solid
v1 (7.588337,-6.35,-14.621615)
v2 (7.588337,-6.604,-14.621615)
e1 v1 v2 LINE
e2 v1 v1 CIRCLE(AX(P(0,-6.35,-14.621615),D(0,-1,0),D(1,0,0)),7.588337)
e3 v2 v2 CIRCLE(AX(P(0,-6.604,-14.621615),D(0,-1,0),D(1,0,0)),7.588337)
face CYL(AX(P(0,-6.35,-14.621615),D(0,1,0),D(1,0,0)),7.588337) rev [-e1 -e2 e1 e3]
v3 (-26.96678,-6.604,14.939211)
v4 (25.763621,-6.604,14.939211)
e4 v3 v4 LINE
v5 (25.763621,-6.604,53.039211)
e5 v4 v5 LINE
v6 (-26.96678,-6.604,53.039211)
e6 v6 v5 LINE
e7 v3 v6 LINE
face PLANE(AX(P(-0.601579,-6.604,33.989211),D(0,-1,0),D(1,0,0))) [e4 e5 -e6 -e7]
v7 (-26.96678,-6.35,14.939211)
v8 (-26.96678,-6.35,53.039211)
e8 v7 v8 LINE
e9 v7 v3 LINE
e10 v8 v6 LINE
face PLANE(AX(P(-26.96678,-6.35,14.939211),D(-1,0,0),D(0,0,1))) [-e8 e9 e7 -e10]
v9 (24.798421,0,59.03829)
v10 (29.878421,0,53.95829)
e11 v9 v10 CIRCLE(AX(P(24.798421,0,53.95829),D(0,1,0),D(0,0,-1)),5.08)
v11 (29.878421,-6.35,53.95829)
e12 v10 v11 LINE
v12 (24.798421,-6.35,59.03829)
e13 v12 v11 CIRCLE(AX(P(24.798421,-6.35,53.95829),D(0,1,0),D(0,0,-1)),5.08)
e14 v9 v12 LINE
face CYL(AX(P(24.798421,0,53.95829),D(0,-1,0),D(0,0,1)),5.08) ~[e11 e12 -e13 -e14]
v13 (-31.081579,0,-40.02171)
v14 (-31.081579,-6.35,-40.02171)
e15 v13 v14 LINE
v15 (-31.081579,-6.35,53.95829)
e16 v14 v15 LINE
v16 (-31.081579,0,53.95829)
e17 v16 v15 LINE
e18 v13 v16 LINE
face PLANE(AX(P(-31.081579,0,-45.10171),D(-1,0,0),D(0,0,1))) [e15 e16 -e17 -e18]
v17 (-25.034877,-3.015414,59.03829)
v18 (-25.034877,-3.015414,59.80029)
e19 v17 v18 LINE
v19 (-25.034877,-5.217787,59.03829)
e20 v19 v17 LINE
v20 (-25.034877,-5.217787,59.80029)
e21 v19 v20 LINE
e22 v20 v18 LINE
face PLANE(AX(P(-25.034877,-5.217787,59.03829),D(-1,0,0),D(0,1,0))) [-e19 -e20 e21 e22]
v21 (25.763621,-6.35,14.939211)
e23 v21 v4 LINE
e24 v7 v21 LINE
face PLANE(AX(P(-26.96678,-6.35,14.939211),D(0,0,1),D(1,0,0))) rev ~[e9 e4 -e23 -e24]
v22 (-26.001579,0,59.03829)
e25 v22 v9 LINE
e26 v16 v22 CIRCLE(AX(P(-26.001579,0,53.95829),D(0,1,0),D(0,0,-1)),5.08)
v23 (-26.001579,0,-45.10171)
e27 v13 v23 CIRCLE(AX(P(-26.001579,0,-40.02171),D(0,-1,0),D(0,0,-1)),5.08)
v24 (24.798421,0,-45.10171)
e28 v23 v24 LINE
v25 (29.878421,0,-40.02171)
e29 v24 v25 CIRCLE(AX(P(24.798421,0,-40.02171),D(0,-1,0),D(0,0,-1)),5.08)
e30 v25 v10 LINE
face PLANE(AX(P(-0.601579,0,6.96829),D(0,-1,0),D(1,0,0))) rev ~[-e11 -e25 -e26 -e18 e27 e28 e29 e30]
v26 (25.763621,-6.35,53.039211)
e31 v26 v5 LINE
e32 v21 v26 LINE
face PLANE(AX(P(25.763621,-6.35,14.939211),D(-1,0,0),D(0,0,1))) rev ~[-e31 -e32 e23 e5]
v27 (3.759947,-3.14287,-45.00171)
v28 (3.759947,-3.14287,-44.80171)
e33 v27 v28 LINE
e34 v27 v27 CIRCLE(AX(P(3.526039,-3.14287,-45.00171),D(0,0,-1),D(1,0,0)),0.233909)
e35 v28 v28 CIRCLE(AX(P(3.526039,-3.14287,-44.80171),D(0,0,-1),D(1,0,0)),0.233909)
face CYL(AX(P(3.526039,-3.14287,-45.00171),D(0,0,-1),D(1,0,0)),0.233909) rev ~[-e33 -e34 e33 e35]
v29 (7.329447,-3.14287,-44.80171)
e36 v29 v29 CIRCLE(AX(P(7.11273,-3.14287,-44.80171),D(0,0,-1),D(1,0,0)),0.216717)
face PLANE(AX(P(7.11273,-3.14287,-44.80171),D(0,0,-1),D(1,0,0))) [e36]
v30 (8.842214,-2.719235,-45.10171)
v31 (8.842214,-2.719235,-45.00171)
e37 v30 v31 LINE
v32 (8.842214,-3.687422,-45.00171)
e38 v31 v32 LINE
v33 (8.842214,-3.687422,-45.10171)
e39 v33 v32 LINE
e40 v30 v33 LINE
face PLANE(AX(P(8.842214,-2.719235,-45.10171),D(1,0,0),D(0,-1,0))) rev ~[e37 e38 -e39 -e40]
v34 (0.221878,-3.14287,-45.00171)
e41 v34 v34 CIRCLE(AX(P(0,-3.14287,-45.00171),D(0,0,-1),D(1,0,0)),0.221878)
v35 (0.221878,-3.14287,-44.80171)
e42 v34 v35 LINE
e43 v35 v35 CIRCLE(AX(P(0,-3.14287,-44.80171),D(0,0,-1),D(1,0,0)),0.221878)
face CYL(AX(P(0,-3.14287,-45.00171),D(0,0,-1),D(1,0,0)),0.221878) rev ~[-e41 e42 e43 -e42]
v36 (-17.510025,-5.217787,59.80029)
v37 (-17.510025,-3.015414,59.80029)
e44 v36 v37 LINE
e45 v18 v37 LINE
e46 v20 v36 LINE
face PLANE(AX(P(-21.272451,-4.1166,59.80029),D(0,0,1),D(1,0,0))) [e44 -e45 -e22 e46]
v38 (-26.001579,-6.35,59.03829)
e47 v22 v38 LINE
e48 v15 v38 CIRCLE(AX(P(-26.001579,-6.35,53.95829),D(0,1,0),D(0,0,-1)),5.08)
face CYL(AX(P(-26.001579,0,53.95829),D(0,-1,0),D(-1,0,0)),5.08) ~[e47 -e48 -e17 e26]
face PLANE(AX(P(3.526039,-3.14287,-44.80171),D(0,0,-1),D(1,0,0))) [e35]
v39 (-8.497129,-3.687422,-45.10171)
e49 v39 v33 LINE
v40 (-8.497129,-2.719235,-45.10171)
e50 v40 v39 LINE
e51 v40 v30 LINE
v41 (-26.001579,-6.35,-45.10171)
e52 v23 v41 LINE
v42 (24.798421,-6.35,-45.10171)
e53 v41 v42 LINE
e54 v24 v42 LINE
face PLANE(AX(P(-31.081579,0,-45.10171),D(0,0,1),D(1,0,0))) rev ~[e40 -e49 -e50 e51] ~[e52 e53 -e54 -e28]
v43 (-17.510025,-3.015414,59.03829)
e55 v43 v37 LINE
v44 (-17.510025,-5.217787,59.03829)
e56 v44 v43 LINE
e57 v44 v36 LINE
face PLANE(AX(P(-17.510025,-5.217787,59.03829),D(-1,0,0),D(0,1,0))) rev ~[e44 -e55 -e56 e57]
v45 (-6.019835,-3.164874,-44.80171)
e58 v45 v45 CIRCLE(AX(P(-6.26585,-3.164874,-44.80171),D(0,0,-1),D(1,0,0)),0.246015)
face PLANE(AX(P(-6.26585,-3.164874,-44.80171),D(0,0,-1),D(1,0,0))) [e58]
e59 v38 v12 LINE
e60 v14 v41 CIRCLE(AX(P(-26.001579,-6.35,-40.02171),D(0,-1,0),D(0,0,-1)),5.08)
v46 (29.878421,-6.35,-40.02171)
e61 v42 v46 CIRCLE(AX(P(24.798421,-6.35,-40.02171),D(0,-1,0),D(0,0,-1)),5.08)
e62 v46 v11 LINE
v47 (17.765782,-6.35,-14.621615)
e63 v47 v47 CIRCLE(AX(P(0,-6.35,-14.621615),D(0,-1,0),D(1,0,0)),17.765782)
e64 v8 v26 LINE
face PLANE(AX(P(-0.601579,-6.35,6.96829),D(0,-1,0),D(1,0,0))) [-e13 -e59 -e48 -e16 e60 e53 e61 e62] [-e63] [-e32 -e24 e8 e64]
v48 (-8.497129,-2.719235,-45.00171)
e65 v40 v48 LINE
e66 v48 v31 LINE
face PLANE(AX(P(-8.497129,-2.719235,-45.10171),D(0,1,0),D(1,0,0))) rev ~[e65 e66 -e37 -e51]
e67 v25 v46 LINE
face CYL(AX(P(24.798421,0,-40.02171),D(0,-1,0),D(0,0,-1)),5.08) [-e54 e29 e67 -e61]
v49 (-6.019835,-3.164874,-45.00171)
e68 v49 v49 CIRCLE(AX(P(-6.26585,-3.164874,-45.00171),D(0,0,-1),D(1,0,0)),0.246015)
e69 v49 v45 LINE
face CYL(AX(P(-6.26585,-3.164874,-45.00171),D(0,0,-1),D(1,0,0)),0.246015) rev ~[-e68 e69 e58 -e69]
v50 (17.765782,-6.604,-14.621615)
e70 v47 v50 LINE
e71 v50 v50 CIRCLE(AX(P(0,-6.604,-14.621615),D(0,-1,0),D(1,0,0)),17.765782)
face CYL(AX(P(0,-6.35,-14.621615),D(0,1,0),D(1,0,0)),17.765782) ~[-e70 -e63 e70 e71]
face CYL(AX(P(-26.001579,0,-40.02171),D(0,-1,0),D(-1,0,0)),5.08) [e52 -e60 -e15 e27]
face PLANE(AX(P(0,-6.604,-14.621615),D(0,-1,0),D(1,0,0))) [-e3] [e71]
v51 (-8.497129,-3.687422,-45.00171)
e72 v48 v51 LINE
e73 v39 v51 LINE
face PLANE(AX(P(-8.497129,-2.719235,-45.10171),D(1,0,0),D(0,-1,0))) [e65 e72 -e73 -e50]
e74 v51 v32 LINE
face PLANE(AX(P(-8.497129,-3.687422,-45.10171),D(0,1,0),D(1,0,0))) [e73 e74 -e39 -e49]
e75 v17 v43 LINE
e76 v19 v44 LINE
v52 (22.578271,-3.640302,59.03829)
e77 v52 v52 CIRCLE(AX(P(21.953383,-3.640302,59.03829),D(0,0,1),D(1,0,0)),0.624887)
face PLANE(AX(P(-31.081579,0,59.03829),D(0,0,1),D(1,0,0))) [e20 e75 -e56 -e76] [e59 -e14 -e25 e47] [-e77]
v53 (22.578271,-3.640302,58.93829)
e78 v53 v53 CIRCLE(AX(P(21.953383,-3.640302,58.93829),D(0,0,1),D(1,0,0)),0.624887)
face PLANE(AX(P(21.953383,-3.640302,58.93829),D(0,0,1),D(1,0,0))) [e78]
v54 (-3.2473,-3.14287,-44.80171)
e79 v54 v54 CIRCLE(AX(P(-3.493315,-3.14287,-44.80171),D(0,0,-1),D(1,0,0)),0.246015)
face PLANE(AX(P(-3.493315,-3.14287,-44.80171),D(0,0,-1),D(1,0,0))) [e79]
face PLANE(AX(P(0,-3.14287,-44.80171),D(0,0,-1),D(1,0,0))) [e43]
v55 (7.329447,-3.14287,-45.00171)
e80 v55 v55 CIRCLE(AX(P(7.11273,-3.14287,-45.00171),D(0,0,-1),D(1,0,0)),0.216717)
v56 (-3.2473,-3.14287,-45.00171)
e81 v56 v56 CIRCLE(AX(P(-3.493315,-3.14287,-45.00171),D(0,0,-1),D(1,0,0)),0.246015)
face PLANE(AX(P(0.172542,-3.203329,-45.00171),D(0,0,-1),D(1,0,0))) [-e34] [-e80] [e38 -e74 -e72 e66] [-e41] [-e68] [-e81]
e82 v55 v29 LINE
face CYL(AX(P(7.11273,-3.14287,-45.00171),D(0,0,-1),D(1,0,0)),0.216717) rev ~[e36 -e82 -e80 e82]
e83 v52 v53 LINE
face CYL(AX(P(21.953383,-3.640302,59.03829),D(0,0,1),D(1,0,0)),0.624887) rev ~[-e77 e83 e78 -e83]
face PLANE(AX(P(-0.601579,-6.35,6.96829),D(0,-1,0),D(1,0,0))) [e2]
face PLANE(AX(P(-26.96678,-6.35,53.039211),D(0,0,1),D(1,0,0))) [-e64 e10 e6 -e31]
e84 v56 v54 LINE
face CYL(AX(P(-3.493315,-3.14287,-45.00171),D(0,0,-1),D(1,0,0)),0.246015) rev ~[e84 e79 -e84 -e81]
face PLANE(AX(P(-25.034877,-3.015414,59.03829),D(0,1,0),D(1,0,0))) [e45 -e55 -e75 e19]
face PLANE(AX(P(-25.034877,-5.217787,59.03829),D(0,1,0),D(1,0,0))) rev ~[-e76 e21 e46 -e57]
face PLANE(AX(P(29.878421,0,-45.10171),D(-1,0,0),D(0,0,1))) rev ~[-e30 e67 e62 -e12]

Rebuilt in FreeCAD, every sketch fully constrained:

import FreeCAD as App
import Part
import Sketcher
from FreeCAD import Vector
Q = App.Units.Quantity


def edges_at(feature, points):
    """Names of the edges that pass closest to the given points."""
    edges = feature.Shape.Edges
    near = lambda p: min(range(len(edges)), key=lambda i: edges[i].distToShape(Part.Vertex(*p))[0])
    return sorted({f"Edge{near(p) + 1}" for p in points})


def add_polygon(sketch, points):
    """Adds a closed chain of lines whose ends are joined by coincident constraints."""
    first, n = sketch.GeometryCount, len(points)
    for a, b in zip(points, points[1:] + points[:1]):
        sketch.addGeometry(Part.LineSegment(App.Vector(*a, 0), App.Vector(*b, 0)), False)
    for i in range(n):
        sketch.addConstraint(Sketcher.Constraint("Coincident", first + i, 2, first + (i + 1) % n, 1))

doc = App.newDocument("Part")
params = doc.addObject("Spreadsheet::Sheet", "Params")
for row, (alias, value) in enumerate([
    ("sketch1_width", "2.4 in"),
    ("sketch1_height", "4.1 in"),
    ("pad1_length", "0.25 in"),
    ("pad2_length", "0.01 in"),
    ("sketch3_height", "1.5 in"),
    ("sketch3_width", "2.076 in"),
    ("pad3_length", "0.01 in"),
    ("pad4_length", "0.03 in"),
    ("fillet_radius", "0.2 in"),
    ("pocket1_length", "0.1 mm"),
    ("pocket2_length", "0.1 mm"),
    ("pocket3_length", "0.2 mm"),
], start=1):
    params.set(f"A{row}", alias)
    params.set(f"B{row}", "=" + value)
    params.setAlias(f"B{row}", alias)

body = doc.addObject("PartDesign::Body", "Body")

# Sketch on XZ plane
sketch1 = body.newObject("Sketcher::SketchObject", "Sketch")
sketch1.AttachmentSupport = (doc.getObject("XZ_Plane"), [""])
sketch1.MapMode = "FlatFace"
add_polygon(sketch1, [(-31, 59), (-31, -45), (30, -45), (30, 59)])  # lines 0-3
sketch1.addConstraint([
    Sketcher.Constraint("Vertical", 0),
    Sketcher.Constraint("Horizontal", 1),
    Sketcher.Constraint("Vertical", 2),
    Sketcher.Constraint("Horizontal", 3),
    Sketcher.Constraint("DistanceX", 1, 1, 1, 2, Q("2.4 in")),
    Sketcher.Constraint("DistanceY", 0, 2, 0, 1, Q("4.1 in")),
    Sketcher.Constraint("DistanceX", 0, 2, -1, 1, 31.081579),
    Sketcher.Constraint("DistanceY", 0, 2, -1, 1, 45.10171),
])
sketch1.setExpression("Constraints[8]", "Params.sketch1_width")
sketch1.setExpression("Constraints[9]", "Params.sketch1_height")
pad1 = body.newObject("PartDesign::Pad", "Pad")
pad1.Profile = sketch1
pad1.setExpression("Length", "Params.pad1_length")

# Sketch on XZ plane
sketch2 = body.newObject("Sketcher::SketchObject", "Sketch001")
sketch2.AttachmentSupport = (doc.getObject("XZ_Plane"), [""])
sketch2.MapMode = "FlatFace"
sketch2.AttachmentOffset = App.Placement(Vector(0, 0, 0.25 * 25.4), App.Rotation())
sketch2.addGeometry([
    Part.Circle(Vector(0, -15, 0), Vector(0, 0, 1), 18),
    Part.Circle(Vector(0, -15, 0), Vector(0, 0, 1), 8),
], False)
sketch2.addConstraint([
    Sketcher.Constraint("Coincident", 1, 3, 0, 3),
    Sketcher.Constraint("PointOnObject", 0, 3, -2),
    Sketcher.Constraint("Diameter", 0, 35.531565),
    Sketcher.Constraint("Diameter", 1, 15.176674),
    Sketcher.Constraint("DistanceY", 0, 3, -1, 1, 14.621615),
])
pad2 = body.newObject("PartDesign::Pad", "Pad001")
pad2.Profile = sketch2
pad2.setExpression("Length", "Params.pad2_length")

# Sketch on XZ plane
sketch3 = body.newObject("Sketcher::SketchObject", "Sketch002")
sketch3.AttachmentSupport = (doc.getObject("XZ_Plane"), [""])
sketch3.MapMode = "FlatFace"
sketch3.AttachmentOffset = App.Placement(Vector(0, 0, 0.25 * 25.4), App.Rotation())
add_polygon(sketch3, [(-27, 53), (-27, 15), (26, 15), (26, 53)])  # lines 0-3
sketch3.addConstraint([
    Sketcher.Constraint("Vertical", 0),
    Sketcher.Constraint("Horizontal", 1),
    Sketcher.Constraint("Vertical", 2),
    Sketcher.Constraint("Horizontal", 3),
    Sketcher.Constraint("DistanceY", 0, 2, 0, 1, Q("1.5 in")),
    Sketcher.Constraint("DistanceX", 1, 1, 1, 2, Q("2.076 in")),
    Sketcher.Constraint("DistanceX", 0, 2, -1, 1, 26.96678),
    Sketcher.Constraint("DistanceY", -1, 1, 0, 2, 14.939211),
])
sketch3.setExpression("Constraints[8]", "Params.sketch3_height")
sketch3.setExpression("Constraints[9]", "Params.sketch3_width")
pad3 = body.newObject("PartDesign::Pad", "Pad002")
pad3.Profile = sketch3
pad3.setExpression("Length", "Params.pad3_length")

# Sketch on XY plane
sketch4 = body.newObject("Sketcher::SketchObject", "Sketch003")
sketch4.AttachmentSupport = (doc.getObject("XY_Plane"), [""])
sketch4.MapMode = "FlatFace"
sketch4.AttachmentOffset = App.Placement(Vector(0, 0, 59.03829), App.Rotation())
add_polygon(sketch4, [(-25, -3), (-25, -5.2), (-17.5, -5.2), (-17.5, -3)])  # lines 0-3
sketch4.addConstraint([
    Sketcher.Constraint("Vertical", 0),
    Sketcher.Constraint("Horizontal", 1),
    Sketcher.Constraint("Vertical", 2),
    Sketcher.Constraint("Horizontal", 3),
    Sketcher.Constraint("DistanceX", 1, 1, 1, 2, 7.524852),
    Sketcher.Constraint("DistanceY", 0, 2, 0, 1, 2.202373),
    Sketcher.Constraint("DistanceX", 0, 2, -1, 1, 25.034877),
    Sketcher.Constraint("DistanceY", 0, 2, -1, 1, 5.217787),
])
pad4 = body.newObject("PartDesign::Pad", "Pad003")
pad4.Profile = sketch4
pad4.setExpression("Length", "Params.pad4_length")
doc.recompute()

fillet = body.newObject("PartDesign::Fillet", "Fillet")
fillet.Base = (pad4, edges_at(pad4, [
    (29.878, -3.175, 59.038),
    (-31.082, -3.175, 59.038),
    (-31.082, -3.175, -45.102),
    (29.878, -3.175, -45.102),
]))
fillet.setExpression("Radius", "Params.fillet_radius")

# Sketch on XY plane
sketch5 = body.newObject("Sketcher::SketchObject", "Sketch004")
sketch5.AttachmentSupport = (doc.getObject("XY_Plane"), [""])
sketch5.MapMode = "FlatFace"
sketch5.AttachmentOffset = App.Placement(Vector(0, 0, 59.03829), App.Rotation())
sketch5.addGeometry(Part.Circle(Vector(22, -3.6, 0), Vector(0, 0, 1), 0.6), False)
sketch5.addConstraint([
    Sketcher.Constraint("Diameter", 0, 1.249775),
    Sketcher.Constraint("DistanceY", 0, 3, -1, 1, 3.640302),
    Sketcher.Constraint("DistanceX", -1, 1, 0, 3, 21.953383),
])
pocket1 = body.newObject("PartDesign::Pocket", "Pocket")
pocket1.Profile = sketch5
pocket1.setExpression("Length", "Params.pocket1_length")

# Sketch on XY plane
sketch6 = body.newObject("Sketcher::SketchObject", "Sketch005")
sketch6.AttachmentSupport = (doc.getObject("XY_Plane"), [""])
sketch6.MapMode = "FlatFace"
sketch6.AttachmentOffset = App.Placement(Vector(0, 0, -45.10171), App.Rotation())
add_polygon(sketch6, [(-8.5, -3.7), (-8.5, -2.7), (8.8, -2.7), (8.8, -3.7)])  # lines 0-3
sketch6.addConstraint([
    Sketcher.Constraint("Vertical", 0),
    Sketcher.Constraint("Horizontal", 1),
    Sketcher.Constraint("Vertical", 2),
    Sketcher.Constraint("Horizontal", 3),
    Sketcher.Constraint("DistanceX", 1, 1, 1, 2, 17.339343),
    Sketcher.Constraint("DistanceY", 0, 1, 0, 2, 0.968187),
    Sketcher.Constraint("DistanceX", 0, 2, -1, 1, 8.497129),
    Sketcher.Constraint("DistanceY", 0, 2, -1, 1, 2.719235),
])
pocket2 = body.newObject("PartDesign::Pocket", "Pocket001")
pocket2.Profile = sketch6
pocket2.setExpression("Length", "Params.pocket2_length")
pocket2.Reversed = True

# Sketch on XY plane
sketch7 = body.newObject("Sketcher::SketchObject", "Sketch006")
sketch7.AttachmentSupport = (doc.getObject("XY_Plane"), [""])
sketch7.MapMode = "FlatFace"
sketch7.AttachmentOffset = App.Placement(Vector(0, 0, -45.00171), App.Rotation())
sketch7.addGeometry([
    Part.Circle(Vector(-6.27, -3.16, 0), Vector(0, 0, 1), 0.25),  # 0
    Part.Circle(Vector(-3.49, -3.14, 0), Vector(0, 0, 1), 0.25),  # 1
    Part.Circle(Vector(0, -3.14, 0), Vector(0, 0, 1), 0.22),  # 2
    Part.Circle(Vector(3.53, -3.14, 0), Vector(0, 0, 1), 0.23),  # 3
    Part.Circle(Vector(7.11, -3.14, 0), Vector(0, 0, 1), 0.22),  # 4
], False)
sketch7.addConstraint([
    Sketcher.Constraint("Equal", 0, 1),
    Sketcher.Constraint("PointOnObject", 2, 3, -2),
    Sketcher.Constraint("Horizontal", 1, 3, 2, 3),
    Sketcher.Constraint("Horizontal", 2, 3, 3, 3),
    Sketcher.Constraint("Horizontal", 3, 3, 4, 3),
    Sketcher.Constraint("Diameter", 0, 0.49203),
    Sketcher.Constraint("Diameter", 2, 0.443756),
    Sketcher.Constraint("Diameter", 3, 0.467817),
    Sketcher.Constraint("Diameter", 4, 0.433434),
    Sketcher.Constraint("DistanceX", 0, 3, -1, 1, 6.26585),
    Sketcher.Constraint("DistanceY", 1, 3, -1, 1, 3.14287),
    Sketcher.Constraint("DistanceX", -1, 1, 3, 3, 3.526039),
    Sketcher.Constraint("DistanceX", -1, 1, 4, 3, 7.11273),
    Sketcher.Constraint("DistanceY", 0, 3, -1, 1, 3.164874),
    Sketcher.Constraint("DistanceX", 1, 3, -1, 1, 3.493315),
])
pocket3 = body.newObject("PartDesign::Pocket", "Pocket002")
pocket3.Profile = sketch7
pocket3.setExpression("Length", "Params.pocket3_length")
pocket3.Reversed = True

doc.recompute()
